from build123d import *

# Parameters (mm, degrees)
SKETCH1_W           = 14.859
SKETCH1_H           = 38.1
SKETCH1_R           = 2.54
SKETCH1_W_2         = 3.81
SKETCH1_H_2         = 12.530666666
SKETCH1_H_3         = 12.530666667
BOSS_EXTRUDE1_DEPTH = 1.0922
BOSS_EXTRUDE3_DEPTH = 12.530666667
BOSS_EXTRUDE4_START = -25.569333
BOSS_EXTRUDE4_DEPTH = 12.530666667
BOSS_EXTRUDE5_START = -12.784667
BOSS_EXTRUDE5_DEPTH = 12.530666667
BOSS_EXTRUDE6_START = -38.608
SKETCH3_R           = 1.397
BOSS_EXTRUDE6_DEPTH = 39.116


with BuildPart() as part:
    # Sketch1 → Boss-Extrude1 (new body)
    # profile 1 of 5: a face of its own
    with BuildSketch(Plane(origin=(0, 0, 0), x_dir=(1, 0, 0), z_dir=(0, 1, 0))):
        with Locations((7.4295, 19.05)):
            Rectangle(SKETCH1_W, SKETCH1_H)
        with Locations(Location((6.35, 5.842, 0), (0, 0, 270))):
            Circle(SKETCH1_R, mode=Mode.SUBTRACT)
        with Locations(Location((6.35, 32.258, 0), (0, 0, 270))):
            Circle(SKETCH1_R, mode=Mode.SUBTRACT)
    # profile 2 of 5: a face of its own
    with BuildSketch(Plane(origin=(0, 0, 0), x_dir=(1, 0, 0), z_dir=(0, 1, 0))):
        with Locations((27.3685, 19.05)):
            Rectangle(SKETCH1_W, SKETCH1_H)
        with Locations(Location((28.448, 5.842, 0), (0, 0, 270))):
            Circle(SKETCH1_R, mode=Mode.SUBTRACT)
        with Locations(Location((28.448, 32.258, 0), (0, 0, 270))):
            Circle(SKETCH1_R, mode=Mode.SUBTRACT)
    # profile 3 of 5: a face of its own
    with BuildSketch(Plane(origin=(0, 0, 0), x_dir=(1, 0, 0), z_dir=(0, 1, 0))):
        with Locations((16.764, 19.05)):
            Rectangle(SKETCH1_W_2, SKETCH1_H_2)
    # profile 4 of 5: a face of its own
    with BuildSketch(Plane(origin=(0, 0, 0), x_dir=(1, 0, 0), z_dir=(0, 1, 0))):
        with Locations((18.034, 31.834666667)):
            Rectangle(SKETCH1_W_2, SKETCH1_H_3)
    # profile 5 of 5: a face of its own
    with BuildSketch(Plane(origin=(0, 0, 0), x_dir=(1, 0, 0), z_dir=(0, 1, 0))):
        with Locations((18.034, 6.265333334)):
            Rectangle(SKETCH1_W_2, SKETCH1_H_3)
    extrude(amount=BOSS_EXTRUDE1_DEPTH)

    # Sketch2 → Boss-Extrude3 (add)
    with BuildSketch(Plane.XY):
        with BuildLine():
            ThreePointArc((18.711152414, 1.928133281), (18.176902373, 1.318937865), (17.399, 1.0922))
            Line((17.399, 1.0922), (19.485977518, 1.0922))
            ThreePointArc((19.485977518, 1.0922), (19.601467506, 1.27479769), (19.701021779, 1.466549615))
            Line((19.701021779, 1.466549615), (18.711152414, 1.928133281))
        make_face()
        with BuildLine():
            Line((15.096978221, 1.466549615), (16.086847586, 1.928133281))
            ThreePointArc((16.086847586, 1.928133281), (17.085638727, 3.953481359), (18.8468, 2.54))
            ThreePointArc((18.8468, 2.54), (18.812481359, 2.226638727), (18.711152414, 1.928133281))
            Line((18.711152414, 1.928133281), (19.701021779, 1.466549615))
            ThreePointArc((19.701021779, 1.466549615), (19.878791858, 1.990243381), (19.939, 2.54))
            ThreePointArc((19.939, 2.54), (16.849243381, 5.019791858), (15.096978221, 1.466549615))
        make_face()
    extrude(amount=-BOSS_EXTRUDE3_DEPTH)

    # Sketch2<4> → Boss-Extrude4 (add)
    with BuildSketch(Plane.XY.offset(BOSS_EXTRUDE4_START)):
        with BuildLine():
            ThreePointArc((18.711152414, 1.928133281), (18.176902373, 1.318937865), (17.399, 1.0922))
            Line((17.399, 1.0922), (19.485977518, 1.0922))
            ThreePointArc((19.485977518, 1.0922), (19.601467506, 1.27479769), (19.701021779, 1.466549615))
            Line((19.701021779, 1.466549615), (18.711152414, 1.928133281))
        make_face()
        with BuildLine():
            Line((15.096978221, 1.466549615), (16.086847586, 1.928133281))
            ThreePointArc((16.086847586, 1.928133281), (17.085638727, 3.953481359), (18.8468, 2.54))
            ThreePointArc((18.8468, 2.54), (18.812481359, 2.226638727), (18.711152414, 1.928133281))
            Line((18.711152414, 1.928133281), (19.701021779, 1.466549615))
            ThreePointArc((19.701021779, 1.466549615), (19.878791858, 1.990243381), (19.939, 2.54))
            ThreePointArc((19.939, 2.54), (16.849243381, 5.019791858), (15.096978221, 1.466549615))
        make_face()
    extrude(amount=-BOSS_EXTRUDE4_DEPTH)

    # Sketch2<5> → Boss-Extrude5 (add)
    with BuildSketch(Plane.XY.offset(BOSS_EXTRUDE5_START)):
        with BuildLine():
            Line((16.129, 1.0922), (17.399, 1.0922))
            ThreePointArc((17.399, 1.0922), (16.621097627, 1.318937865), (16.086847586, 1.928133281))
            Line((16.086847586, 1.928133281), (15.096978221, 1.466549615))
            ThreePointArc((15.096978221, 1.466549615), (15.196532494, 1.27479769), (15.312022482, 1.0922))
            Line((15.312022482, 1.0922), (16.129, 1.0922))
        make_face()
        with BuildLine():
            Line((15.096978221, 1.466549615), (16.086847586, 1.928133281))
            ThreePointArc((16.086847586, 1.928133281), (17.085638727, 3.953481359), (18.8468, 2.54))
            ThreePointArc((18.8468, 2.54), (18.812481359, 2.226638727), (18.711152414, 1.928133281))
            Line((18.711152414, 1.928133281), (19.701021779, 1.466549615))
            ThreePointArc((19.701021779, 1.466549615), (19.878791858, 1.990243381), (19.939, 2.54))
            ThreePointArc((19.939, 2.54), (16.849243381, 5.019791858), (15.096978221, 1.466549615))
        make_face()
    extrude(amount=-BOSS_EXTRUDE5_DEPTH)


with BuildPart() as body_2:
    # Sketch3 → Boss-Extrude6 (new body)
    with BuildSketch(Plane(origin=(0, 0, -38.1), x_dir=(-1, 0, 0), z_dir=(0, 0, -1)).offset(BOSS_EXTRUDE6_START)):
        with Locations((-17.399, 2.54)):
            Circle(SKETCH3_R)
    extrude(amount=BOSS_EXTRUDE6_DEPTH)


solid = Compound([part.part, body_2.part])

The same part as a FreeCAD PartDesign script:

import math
import FreeCAD as App
import Part
import Sketcher
Q = App.Units.Quantity

doc = App.newDocument("Part")
body = doc.addObject("PartDesign::Body", "Body")
body.AllowCompound = True

# Sketch on XZ plane
sketch1 = doc.addObject("Sketcher::SketchObject", "Sketch")
body.addObject(sketch1)
sketch1.AttachmentSupport = (doc.XZ_Plane, [""])
sketch1.MapMode = "FlatFace"
sketch1.addGeometry(Part.LineSegment(App.Vector(0, -38.1, 0), App.Vector(0, 0, 0)), False)
sketch1.addGeometry(Part.LineSegment(App.Vector(0, 0, 0), App.Vector(14.859, 0, 0)), False)
sketch1.addGeometry(Part.LineSegment(App.Vector(14.859, 0, 0), App.Vector(14.859, -12.784667, 0)), False)
sketch1.addGeometry(Part.LineSegment(App.Vector(14.859, -12.784667, 0), App.Vector(18.669, -12.784667, 0)), False)
sketch1.addGeometry(Part.LineSegment(App.Vector(18.669, -12.784667, 0), App.Vector(18.669, -25.315333, 0)), False)
sketch1.addGeometry(Part.LineSegment(App.Vector(18.669, -25.315333, 0), App.Vector(14.859, -25.315333, 0)), False)
sketch1.addGeometry(Part.LineSegment(App.Vector(14.859, -25.315333, 0), App.Vector(14.859, -38.1, 0)), False)
sketch1.addGeometry(Part.LineSegment(App.Vector(14.859, -38.1, 0), App.Vector(0, -38.1, 0)), False)
sketch1.addGeometry(Part.Circle(App.Vector(6.35, -5.842, 0), App.Vector(0, 0, 1), 2.54), False)
sketch1.addGeometry(Part.Circle(App.Vector(6.35, -32.258, 0), App.Vector(0, 0, 1), 2.54), False)
sketch1.addGeometry(Part.LineSegment(App.Vector(19.939, -25.569333, 0), App.Vector(19.939, -12.530667, 0)), False)
sketch1.addGeometry(Part.LineSegment(App.Vector(19.939, -12.530667, 0), App.Vector(16.129, -12.530667, 0)), False)
sketch1.addGeometry(Part.LineSegment(App.Vector(16.129, -12.530667, 0), App.Vector(16.129, 0, 0)), False)
sketch1.addGeometry(Part.LineSegment(App.Vector(16.129, 0, 0), App.Vector(19.939, 0, 0)), False)
sketch1.addGeometry(Part.LineSegment(App.Vector(19.939, 0, 0), App.Vector(34.798, 0, 0)), False)
sketch1.addGeometry(Part.LineSegment(App.Vector(34.798, 0, 0), App.Vector(34.798, -38.1, 0)), False)
sketch1.addGeometry(Part.LineSegment(App.Vector(34.798, -38.1, 0), App.Vector(19.939, -38.1, 0)), False)
sketch1.addGeometry(Part.LineSegment(App.Vector(19.939, -38.1, 0), App.Vector(16.129, -38.1, 0)), False)
sketch1.addGeometry(Part.LineSegment(App.Vector(16.129, -38.1, 0), App.Vector(16.129, -25.569333, 0)), False)
sketch1.addGeometry(Part.LineSegment(App.Vector(16.129, -25.569333, 0), App.Vector(19.939, -25.569333, 0)), False)
sketch1.addGeometry(Part.Circle(App.Vector(28.448, -5.842, 0), App.Vector(0, 0, 1), 2.54), False)
sketch1.addGeometry(Part.Circle(App.Vector(28.448, -32.258, 0), App.Vector(0, 0, 1), 2.54), False)
sketch1.addConstraint(Sketcher.Constraint("Coincident", 0, 2, 1, 1))
sketch1.addConstraint(Sketcher.Constraint("Coincident", 1, 2, 2, 1))
sketch1.addConstraint(Sketcher.Constraint("Coincident", 2, 2, 3, 1))
sketch1.addConstraint(Sketcher.Constraint("Coincident", 3, 2, 4, 1))
sketch1.addConstraint(Sketcher.Constraint("Coincident", 4, 2, 5, 1))
sketch1.addConstraint(Sketcher.Constraint("Coincident", 5, 2, 6, 1))
sketch1.addConstraint(Sketcher.Constraint("Coincident", 6, 2, 7, 1))
sketch1.addConstraint(Sketcher.Constraint("Coincident", 7, 2, 0, 1))
sketch1.addConstraint(Sketcher.Constraint("Coincident", 10, 2, 11, 1))
sketch1.addConstraint(Sketcher.Constraint("Coincident", 11, 2, 12, 1))
sketch1.addConstraint(Sketcher.Constraint("Coincident", 12, 2, 13, 1))
sketch1.addConstraint(Sketcher.Constraint("Coincident", 13, 2, 14, 1))
sketch1.addConstraint(Sketcher.Constraint("Coincident", 14, 2, 15, 1))
sketch1.addConstraint(Sketcher.Constraint("Coincident", 15, 2, 16, 1))
sketch1.addConstraint(Sketcher.Constraint("Coincident", 16, 2, 17, 1))
sketch1.addConstraint(Sketcher.Constraint("Coincident", 17, 2, 18, 1))
sketch1.addConstraint(Sketcher.Constraint("Coincident", 18, 2, 19, 1))
sketch1.addConstraint(Sketcher.Constraint("Coincident", 19, 2, 10, 1))
sketch1.addConstraint(Sketcher.Constraint("Vertical", 0))
sketch1.addConstraint(Sketcher.Constraint("Horizontal", 1))
sketch1.addConstraint(Sketcher.Constraint("Vertical", 2))
sketch1.addConstraint(Sketcher.Constraint("Horizontal", 3))
sketch1.addConstraint(Sketcher.Constraint("Vertical", 4))
sketch1.addConstraint(Sketcher.Constraint("Horizontal", 5))
sketch1.addConstraint(Sketcher.Constraint("Vertical", 6))
sketch1.addConstraint(Sketcher.Constraint("Horizontal", 7))
sketch1.addConstraint(Sketcher.Constraint("Vertical", 10))
sketch1.addConstraint(Sketcher.Constraint("Horizontal", 11))
sketch1.addConstraint(Sketcher.Constraint("Vertical", 12))
sketch1.addConstraint(Sketcher.Constraint("Horizontal", 13))
sketch1.addConstraint(Sketcher.Constraint("Horizontal", 14))
sketch1.addConstraint(Sketcher.Constraint("Vertical", 15))
sketch1.addConstraint(Sketcher.Constraint("Horizontal", 16))
sketch1.addConstraint(Sketcher.Constraint("Horizontal", 17))
sketch1.addConstraint(Sketcher.Constraint("Vertical", 18))
sketch1.addConstraint(Sketcher.Constraint("Horizontal", 19))
sketch1.addConstraint(Sketcher.Constraint("Coincident", 0, 2, -1, 1))
sketch1.addConstraint(Sketcher.Constraint("Equal", 8, 9))
sketch1.addConstraint(Sketcher.Constraint("Equal", 9, 20))
sketch1.addConstraint(Sketcher.Constraint("Equal", 20, 21))
sketch1.addConstraint(Sketcher.Constraint("PointOnObject", 12, 2, -1))
sketch1.addConstraint(Sketcher.Constraint("Horizontal", 8, 3, 20, 3))
sketch1.addConstraint(Sketcher.Constraint("Horizontal", 9, 3, 21, 3))
sketch1.addConstraint(Sketcher.Constraint("Horizontal", 7, 2, 15, 2))
sketch1.addConstraint(Sketcher.Constraint("Vertical", 8, 3, 9, 3))
sketch1.addConstraint(Sketcher.Constraint("Vertical", 20, 3, 21, 3))
sketch1.addConstraint(Sketcher.Constraint("Vertical", 2, 2, 5, 2))
sketch1.addConstraint(Sketcher.Constraint("Vertical", 10, 2, 13, 2))
sketch1.addConstraint(Sketcher.Constraint("Vertical", 13, 2, 16, 2))
sketch1.addConstraint(Sketcher.Constraint("Vertical", 12, 2, 17, 2))
sketch1.addConstraint(Sketcher.Constraint("Equal", 5, 11))
sketch1.addConstraint(Sketcher.Constraint("Equal", 7, 14))
sketch1.addConstraint(Sketcher.Constraint("Equal", 2, 6))
sketch1.addConstraint(Sketcher.Constraint("Equal", 4, 12))
sketch1.addConstraint(Sketcher.Constraint("Equal", 12, 18))
sketch1.addConstraint(Sketcher.Constraint("Diameter", 8, Q("0.2 in")))
sketch1.addConstraint(Sketcher.Constraint("DistanceY", 0, 1, 0, 2, Q("1.5 in")))
sketch1.addConstraint(Sketcher.Constraint("DistanceX", 3, 1, 3, 2, Q("0.15 in")))
sketch1.addConstraint(Sketcher.Constraint("DistanceX", 2, 2, 10, 2, Q("0.2 in")))
sketch1.addConstraint(Sketcher.Constraint("DistanceX", 1, 1, 1, 2, Q("0.585 in")))
sketch1.addConstraint(Sketcher.Constraint("DistanceX", -1, 1, 8, 3, Q("0.25 in")))
sketch1.addConstraint(Sketcher.Constraint("DistanceY", 8, 3, -1, 1, Q("0.23 in")))
sketch1.addConstraint(Sketcher.Constraint("DistanceY", 9, 3, -1, 1, Q("1.27 in")))
sketch1.addConstraint(Sketcher.Constraint("DistanceX", -1, 1, 20, 3, Q("1.12 in")))
sketch1.addConstraint(Sketcher.Constraint("DistanceY", 3, 2, 10, 2, Q("0.01 in")))
pad1 = doc.addObject("PartDesign::Pad", "Pad")
body.addObject(pad1)
pad1.Profile = sketch1
pad1.Length = Q("0.043 in")
pad1.Reversed = True

# Sketch on XY plane
sketch2 = doc.addObject("Sketcher::SketchObject", "Sketch001")
body.addObject(sketch2)
sketch2.AttachmentSupport = (doc.XY_Plane, [""])
sketch2.MapMode = "FlatFace"
sketch2.addGeometry(Part.ArcOfCircle(Part.Circle(App.Vector(17.399, 2.54, 0), App.Vector(0, 0, 1), 1.4478), math.radians(-90), math.radians(-25)), False)
sketch2.addGeometry(Part.LineSegment(App.Vector(17.399, 1.0922, 0), App.Vector(19.485978, 1.0922, 0)), False)
sketch2.addGeometry(Part.ArcOfCircle(Part.Circle(App.Vector(17.399, 2.54, 0), App.Vector(0, 0, 1), 2.54), math.radians(-34.750226), math.radians(-25)), False)
sketch2.addGeometry(Part.ArcOfCircle(Part.Circle(App.Vector(17.399, 2.54, 0), App.Vector(0, 0, 1), 2.54), math.radians(-25), math.radians(0)), False)
sketch2.addGeometry(Part.ArcOfCircle(Part.Circle(App.Vector(17.399, 2.54, 0), App.Vector(0, 0, 1), 2.54), math.radians(0), math.radians(205)), False)
sketch2.addGeometry(Part.LineSegment(App.Vector(15.096978, 1.46655, 0), App.Vector(16.086848, 1.928133, 0)), False)
sketch2.addGeometry(Part.ArcOfCircle(Part.Circle(App.Vector(17.399, 2.54, 0), App.Vector(0, 0, 1), 1.4478), math.radians(0), math.radians(205)), False)
sketch2.addGeometry(Part.ArcOfCircle(Part.Circle(App.Vector(17.399, 2.54, 0), App.Vector(0, 0, 1), 1.4478), math.radians(-25), math.radians(0)), False)
sketch2.addConstraint(Sketcher.Constraint("Tangent", 0, 1, 1, 1))
sketch2.addConstraint(Sketcher.Constraint("Coincident", 1, 2, 2, 1))
sketch2.addConstraint(Sketcher.Constraint("Tangent", 2, 2, 3, 1))
sketch2.addConstraint(Sketcher.Constraint("Tangent", 3, 2, 4, 1))
sketch2.addConstraint(Sketcher.Constraint("Coincident", 4, 2, 5, 1))
sketch2.addConstraint(Sketcher.Constraint("Coincident", 5, 2, 6, 2))
sketch2.addConstraint(Sketcher.Constraint("Tangent", 6, 1, 7, 2))
sketch2.addConstraint(Sketcher.Constraint("Tangent", 7, 1, 0, 2))
sketch2.addConstraint(Sketcher.Constraint("Horizontal", 1))
sketch2.addConstraint(Sketcher.Constraint("Coincident", 2, 3, 0, 3))
sketch2.addConstraint(Sketcher.Constraint("Coincident", 4, 3, 0, 3))
sketch2.addConstraint(Sketcher.Constraint("Coincident", 6, 3, 0, 3))
sketch2.addConstraint(Sketcher.Constraint("Horizontal", 7, 3, 3, 2))
sketch2.addConstraint(Sketcher.Constraint("Horizontal", 2, 2, 4, 2))
sketch2.addConstraint(Sketcher.Constraint("Horizontal", 3, 2, 6, 1))
sketch2.addConstraint(Sketcher.Constraint("Horizontal", 5, 2, 7, 1))
sketch2.addConstraint(Sketcher.Constraint("Radius", 2, Q("0.1 in")))
sketch2.addConstraint(Sketcher.Constraint("Angle", 5, Q("25 deg")))
sketch2.addConstraint(Sketcher.Constraint("Radius", 0, Q("0.057 in")))
sketch2.addConstraint(Sketcher.Constraint("DistanceY", -1, 1, 0, 3, Q("0.1 in")))
sketch2.addConstraint(Sketcher.Constraint("DistanceX", -1, 1, 0, 3, Q("0.685 in")))
sketch2.addConstraint(Sketcher.Constraint("DistanceX", -1, 1, 2, 2, 19.701022))
pad2 = doc.addObject("PartDesign::Pad", "Pad001")
body.addObject(pad2)
pad2.Profile = sketch2
pad2.Length = 12.530667
pad2.Reversed = True

# Sketch on XY plane
sketch3 = doc.addObject("Sketcher::SketchObject", "Sketch002")
body.addObject(sketch3)
sketch3.AttachmentSupport = (doc.XY_Plane, [""])
sketch3.MapMode = "FlatFace"
sketch3.AttachmentOffset = App.Placement(App.Vector(0, 0, -25.569333), App.Rotation())
sketch3.addGeometry(Part.ArcOfCircle(Part.Circle(App.Vector(17.399, 2.54, 0), App.Vector(0, 0, 1), 1.4478), math.radians(-90), math.radians(-25)), False)
sketch3.addGeometry(Part.LineSegment(App.Vector(17.399, 1.0922, 0), App.Vector(19.485978, 1.0922, 0)), False)
sketch3.addGeometry(Part.ArcOfCircle(Part.Circle(App.Vector(17.399, 2.54, 0), App.Vector(0, 0, 1), 2.54), math.radians(-34.750226), math.radians(-25)), False)
sketch3.addGeometry(Part.ArcOfCircle(Part.Circle(App.Vector(17.399, 2.54, 0), App.Vector(0, 0, 1), 2.54), math.radians(-25), math.radians(0)), False)
sketch3.addGeometry(Part.ArcOfCircle(Part.Circle(App.Vector(17.399, 2.54, 0), App.Vector(0, 0, 1), 2.54), math.radians(0), math.radians(205)), False)
sketch3.addGeometry(Part.LineSegment(App.Vector(15.096978, 1.46655, 0), App.Vector(16.086848, 1.928133, 0)), False)
sketch3.addGeometry(Part.ArcOfCircle(Part.Circle(App.Vector(17.399, 2.54, 0), App.Vector(0, 0, 1), 1.4478), math.radians(0), math.radians(205)), False)
sketch3.addGeometry(Part.ArcOfCircle(Part.Circle(App.Vector(17.399, 2.54, 0), App.Vector(0, 0, 1), 1.4478), math.radians(-25), math.radians(0)), False)
sketch3.addConstraint(Sketcher.Constraint("Tangent", 0, 1, 1, 1))
sketch3.addConstraint(Sketcher.Constraint("Coincident", 1, 2, 2, 1))
sketch3.addConstraint(Sketcher.Constraint("Tangent", 2, 2, 3, 1))
sketch3.addConstraint(Sketcher.Constraint("Tangent", 3, 2, 4, 1))
sketch3.addConstraint(Sketcher.Constraint("Coincident", 4, 2, 5, 1))
sketch3.addConstraint(Sketcher.Constraint("Coincident", 5, 2, 6, 2))
sketch3.addConstraint(Sketcher.Constraint("Tangent", 6, 1, 7, 2))
sketch3.addConstraint(Sketcher.Constraint("Tangent", 7, 1, 0, 2))
sketch3.addConstraint(Sketcher.Constraint("Horizontal", 1))
sketch3.addConstraint(Sketcher.Constraint("Coincident", 2, 3, 0, 3))
sketch3.addConstraint(Sketcher.Constraint("Coincident", 4, 3, 0, 3))
sketch3.addConstraint(Sketcher.Constraint("Coincident", 6, 3, 0, 3))
sketch3.addConstraint(Sketcher.Constraint("Horizontal", 7, 3, 3, 2))
sketch3.addConstraint(Sketcher.Constraint("Horizontal", 2, 2, 4, 2))
sketch3.addConstraint(Sketcher.Constraint("Horizontal", 3, 2, 6, 1))
sketch3.addConstraint(Sketcher.Constraint("Horizontal", 5, 2, 7, 1))
sketch3.addConstraint(Sketcher.Constraint("Radius", 2, Q("0.1 in")))
sketch3.addConstraint(Sketcher.Constraint("Angle", 5, Q("25 deg")))
sketch3.addConstraint(Sketcher.Constraint("Radius", 0, Q("0.057 in")))
sketch3.addConstraint(Sketcher.Constraint("DistanceY", -1, 1, 0, 3, Q("0.1 in")))
sketch3.addConstraint(Sketcher.Constraint("DistanceX", -1, 1, 0, 3, Q("0.685 in")))
sketch3.addConstraint(Sketcher.Constraint("DistanceX", -1, 1, 2, 2, 19.701022))
pad3 = doc.addObject("PartDesign::Pad", "Pad002")
body.addObject(pad3)
pad3.Profile = sketch3
pad3.Length = 12.530667
pad3.Reversed = True

# Sketch on XY plane
sketch4 = doc.addObject("Sketcher::SketchObject", "Sketch003")
body.addObject(sketch4)
sketch4.AttachmentSupport = (doc.XY_Plane, [""])
sketch4.MapMode = "FlatFace"
sketch4.AttachmentOffset = App.Placement(App.Vector(0, 0, -12.784667), App.Rotation())
sketch4.addGeometry(Part.ArcOfCircle(Part.Circle(App.Vector(17.399, 2.54, 0), App.Vector(0, 0, 1), 1.4478), math.radians(-155), math.radians(-90)), False)
sketch4.addGeometry(Part.ArcOfCircle(Part.Circle(App.Vector(17.399, 2.54, 0), App.Vector(0, 0, 1), 1.4478), math.radians(0), math.radians(205)), False)
sketch4.addGeometry(Part.ArcOfCircle(Part.Circle(App.Vector(17.399, 2.54, 0), App.Vector(0, 0, 1), 1.4478), math.radians(-25), math.radians(0)), False)
sketch4.addGeometry(Part.LineSegment(App.Vector(18.711152, 1.928133, 0), App.Vector(19.701022, 1.46655, 0)), False)
sketch4.addGeometry(Part.ArcOfCircle(Part.Circle(App.Vector(17.399, 2.54, 0), App.Vector(0, 0, 1), 2.54), math.radians(-25), math.radians(0)), False)
sketch4.addGeometry(Part.ArcOfCircle(Part.Circle(App.Vector(17.399, 2.54, 0), App.Vector(0, 0, 1), 2.54), math.radians(0), math.radians(205)), False)
sketch4.addGeometry(Part.ArcOfCircle(Part.Circle(App.Vector(17.399, 2.54, 0), App.Vector(0, 0, 1), 2.54), math.radians(-155), math.radians(-145.249774)), False)
sketch4.addGeometry(Part.LineSegment(App.Vector(15.312022, 1.0922, 0), App.Vector(17.399, 1.0922, 0)), False)
sketch4.addConstraint(Sketcher.Constraint("Tangent", 0, 1, 1, 2))
sketch4.addConstraint(Sketcher.Constraint("Tangent", 1, 1, 2, 2))
sketch4.addConstraint(Sketcher.Constraint("Coincident", 2, 1, 3, 1))
sketch4.addConstraint(Sketcher.Constraint("Coincident", 3, 2, 4, 1))
sketch4.addConstraint(Sketcher.Constraint("Tangent", 4, 2, 5, 1))
sketch4.addConstraint(Sketcher.Constraint("Tangent", 5, 2, 6, 1))
sketch4.addConstraint(Sketcher.Constraint("Coincident", 6, 2, 7, 1))
sketch4.addConstraint(Sketcher.Constraint("Tangent", 7, 2, 0, 2))
sketch4.addConstraint(Sketcher.Constraint("Horizontal", 7))
sketch4.addConstraint(Sketcher.Constraint("Coincident", 2, 3, 0, 3))
sketch4.addConstraint(Sketcher.Constraint("Coincident", 4, 3, 0, 3))
sketch4.addConstraint(Sketcher.Constraint("Coincident", 6, 3, 0, 3))
sketch4.addConstraint(Sketcher.Constraint("Horizontal", 6, 3, 1, 1))
sketch4.addConstraint(Sketcher.Constraint("Horizontal", 0, 1, 2, 1))
sketch4.addConstraint(Sketcher.Constraint("Horizontal", 1, 1, 4, 2))
sketch4.addConstraint(Sketcher.Constraint("Horizontal", 3, 2, 5, 2))
sketch4.addConstraint(Sketcher.Constraint("Radius", 4, Q("0.1 in")))
sketch4.addConstraint(Sketcher.Constraint("Angle", 3, Q("-25 deg")))
sketch4.addConstraint(Sketcher.Constraint("Radius", 0, Q("0.057 in")))
sketch4.addConstraint(Sketcher.Constraint("DistanceY", -1, 1, 0, 3, Q("0.1 in")))
sketch4.addConstraint(Sketcher.Constraint("DistanceX", -1, 1, 0, 3, Q("0.685 in")))
sketch4.addConstraint(Sketcher.Constraint("DistanceX", -1, 1, 3, 2, 19.701022))
pad4 = doc.addObject("PartDesign::Pad", "Pad003")
body.addObject(pad4)
pad4.Profile = sketch4
pad4.Length = 12.530667
pad4.Reversed = True
body2 = doc.addObject("PartDesign::Body", "Body001")

# Sketch on XY plane
sketch5 = doc.addObject("Sketcher::SketchObject", "Sketch004")
body2.addObject(sketch5)
sketch5.AttachmentSupport = (doc.getObject("XY_Plane001"), [""])
sketch5.MapMode = "FlatFace"
sketch5.AttachmentOffset = App.Placement(App.Vector(0, 0, 0.02 * 25.4), App.Rotation())
sketch5.addGeometry(Part.Circle(App.Vector(17.399, 2.54, 0), App.Vector(0, 0, 1), 1.397), False)
sketch5.addConstraint(Sketcher.Constraint("Diameter", 0, Q("0.11 in")))
sketch5.addConstraint(Sketcher.Constraint("DistanceY", -1, 1, 0, 3, Q("0.1 in")))
sketch5.addConstraint(Sketcher.Constraint("DistanceX", -1, 1, 0, 3, Q("0.685 in")))
pad5 = doc.addObject("PartDesign::Pad", "Pad004")
body2.addObject(pad5)
pad5.Profile = sketch5
pad5.Length = Q("1.54 in")
pad5.Reversed = True

doc.recompute()
